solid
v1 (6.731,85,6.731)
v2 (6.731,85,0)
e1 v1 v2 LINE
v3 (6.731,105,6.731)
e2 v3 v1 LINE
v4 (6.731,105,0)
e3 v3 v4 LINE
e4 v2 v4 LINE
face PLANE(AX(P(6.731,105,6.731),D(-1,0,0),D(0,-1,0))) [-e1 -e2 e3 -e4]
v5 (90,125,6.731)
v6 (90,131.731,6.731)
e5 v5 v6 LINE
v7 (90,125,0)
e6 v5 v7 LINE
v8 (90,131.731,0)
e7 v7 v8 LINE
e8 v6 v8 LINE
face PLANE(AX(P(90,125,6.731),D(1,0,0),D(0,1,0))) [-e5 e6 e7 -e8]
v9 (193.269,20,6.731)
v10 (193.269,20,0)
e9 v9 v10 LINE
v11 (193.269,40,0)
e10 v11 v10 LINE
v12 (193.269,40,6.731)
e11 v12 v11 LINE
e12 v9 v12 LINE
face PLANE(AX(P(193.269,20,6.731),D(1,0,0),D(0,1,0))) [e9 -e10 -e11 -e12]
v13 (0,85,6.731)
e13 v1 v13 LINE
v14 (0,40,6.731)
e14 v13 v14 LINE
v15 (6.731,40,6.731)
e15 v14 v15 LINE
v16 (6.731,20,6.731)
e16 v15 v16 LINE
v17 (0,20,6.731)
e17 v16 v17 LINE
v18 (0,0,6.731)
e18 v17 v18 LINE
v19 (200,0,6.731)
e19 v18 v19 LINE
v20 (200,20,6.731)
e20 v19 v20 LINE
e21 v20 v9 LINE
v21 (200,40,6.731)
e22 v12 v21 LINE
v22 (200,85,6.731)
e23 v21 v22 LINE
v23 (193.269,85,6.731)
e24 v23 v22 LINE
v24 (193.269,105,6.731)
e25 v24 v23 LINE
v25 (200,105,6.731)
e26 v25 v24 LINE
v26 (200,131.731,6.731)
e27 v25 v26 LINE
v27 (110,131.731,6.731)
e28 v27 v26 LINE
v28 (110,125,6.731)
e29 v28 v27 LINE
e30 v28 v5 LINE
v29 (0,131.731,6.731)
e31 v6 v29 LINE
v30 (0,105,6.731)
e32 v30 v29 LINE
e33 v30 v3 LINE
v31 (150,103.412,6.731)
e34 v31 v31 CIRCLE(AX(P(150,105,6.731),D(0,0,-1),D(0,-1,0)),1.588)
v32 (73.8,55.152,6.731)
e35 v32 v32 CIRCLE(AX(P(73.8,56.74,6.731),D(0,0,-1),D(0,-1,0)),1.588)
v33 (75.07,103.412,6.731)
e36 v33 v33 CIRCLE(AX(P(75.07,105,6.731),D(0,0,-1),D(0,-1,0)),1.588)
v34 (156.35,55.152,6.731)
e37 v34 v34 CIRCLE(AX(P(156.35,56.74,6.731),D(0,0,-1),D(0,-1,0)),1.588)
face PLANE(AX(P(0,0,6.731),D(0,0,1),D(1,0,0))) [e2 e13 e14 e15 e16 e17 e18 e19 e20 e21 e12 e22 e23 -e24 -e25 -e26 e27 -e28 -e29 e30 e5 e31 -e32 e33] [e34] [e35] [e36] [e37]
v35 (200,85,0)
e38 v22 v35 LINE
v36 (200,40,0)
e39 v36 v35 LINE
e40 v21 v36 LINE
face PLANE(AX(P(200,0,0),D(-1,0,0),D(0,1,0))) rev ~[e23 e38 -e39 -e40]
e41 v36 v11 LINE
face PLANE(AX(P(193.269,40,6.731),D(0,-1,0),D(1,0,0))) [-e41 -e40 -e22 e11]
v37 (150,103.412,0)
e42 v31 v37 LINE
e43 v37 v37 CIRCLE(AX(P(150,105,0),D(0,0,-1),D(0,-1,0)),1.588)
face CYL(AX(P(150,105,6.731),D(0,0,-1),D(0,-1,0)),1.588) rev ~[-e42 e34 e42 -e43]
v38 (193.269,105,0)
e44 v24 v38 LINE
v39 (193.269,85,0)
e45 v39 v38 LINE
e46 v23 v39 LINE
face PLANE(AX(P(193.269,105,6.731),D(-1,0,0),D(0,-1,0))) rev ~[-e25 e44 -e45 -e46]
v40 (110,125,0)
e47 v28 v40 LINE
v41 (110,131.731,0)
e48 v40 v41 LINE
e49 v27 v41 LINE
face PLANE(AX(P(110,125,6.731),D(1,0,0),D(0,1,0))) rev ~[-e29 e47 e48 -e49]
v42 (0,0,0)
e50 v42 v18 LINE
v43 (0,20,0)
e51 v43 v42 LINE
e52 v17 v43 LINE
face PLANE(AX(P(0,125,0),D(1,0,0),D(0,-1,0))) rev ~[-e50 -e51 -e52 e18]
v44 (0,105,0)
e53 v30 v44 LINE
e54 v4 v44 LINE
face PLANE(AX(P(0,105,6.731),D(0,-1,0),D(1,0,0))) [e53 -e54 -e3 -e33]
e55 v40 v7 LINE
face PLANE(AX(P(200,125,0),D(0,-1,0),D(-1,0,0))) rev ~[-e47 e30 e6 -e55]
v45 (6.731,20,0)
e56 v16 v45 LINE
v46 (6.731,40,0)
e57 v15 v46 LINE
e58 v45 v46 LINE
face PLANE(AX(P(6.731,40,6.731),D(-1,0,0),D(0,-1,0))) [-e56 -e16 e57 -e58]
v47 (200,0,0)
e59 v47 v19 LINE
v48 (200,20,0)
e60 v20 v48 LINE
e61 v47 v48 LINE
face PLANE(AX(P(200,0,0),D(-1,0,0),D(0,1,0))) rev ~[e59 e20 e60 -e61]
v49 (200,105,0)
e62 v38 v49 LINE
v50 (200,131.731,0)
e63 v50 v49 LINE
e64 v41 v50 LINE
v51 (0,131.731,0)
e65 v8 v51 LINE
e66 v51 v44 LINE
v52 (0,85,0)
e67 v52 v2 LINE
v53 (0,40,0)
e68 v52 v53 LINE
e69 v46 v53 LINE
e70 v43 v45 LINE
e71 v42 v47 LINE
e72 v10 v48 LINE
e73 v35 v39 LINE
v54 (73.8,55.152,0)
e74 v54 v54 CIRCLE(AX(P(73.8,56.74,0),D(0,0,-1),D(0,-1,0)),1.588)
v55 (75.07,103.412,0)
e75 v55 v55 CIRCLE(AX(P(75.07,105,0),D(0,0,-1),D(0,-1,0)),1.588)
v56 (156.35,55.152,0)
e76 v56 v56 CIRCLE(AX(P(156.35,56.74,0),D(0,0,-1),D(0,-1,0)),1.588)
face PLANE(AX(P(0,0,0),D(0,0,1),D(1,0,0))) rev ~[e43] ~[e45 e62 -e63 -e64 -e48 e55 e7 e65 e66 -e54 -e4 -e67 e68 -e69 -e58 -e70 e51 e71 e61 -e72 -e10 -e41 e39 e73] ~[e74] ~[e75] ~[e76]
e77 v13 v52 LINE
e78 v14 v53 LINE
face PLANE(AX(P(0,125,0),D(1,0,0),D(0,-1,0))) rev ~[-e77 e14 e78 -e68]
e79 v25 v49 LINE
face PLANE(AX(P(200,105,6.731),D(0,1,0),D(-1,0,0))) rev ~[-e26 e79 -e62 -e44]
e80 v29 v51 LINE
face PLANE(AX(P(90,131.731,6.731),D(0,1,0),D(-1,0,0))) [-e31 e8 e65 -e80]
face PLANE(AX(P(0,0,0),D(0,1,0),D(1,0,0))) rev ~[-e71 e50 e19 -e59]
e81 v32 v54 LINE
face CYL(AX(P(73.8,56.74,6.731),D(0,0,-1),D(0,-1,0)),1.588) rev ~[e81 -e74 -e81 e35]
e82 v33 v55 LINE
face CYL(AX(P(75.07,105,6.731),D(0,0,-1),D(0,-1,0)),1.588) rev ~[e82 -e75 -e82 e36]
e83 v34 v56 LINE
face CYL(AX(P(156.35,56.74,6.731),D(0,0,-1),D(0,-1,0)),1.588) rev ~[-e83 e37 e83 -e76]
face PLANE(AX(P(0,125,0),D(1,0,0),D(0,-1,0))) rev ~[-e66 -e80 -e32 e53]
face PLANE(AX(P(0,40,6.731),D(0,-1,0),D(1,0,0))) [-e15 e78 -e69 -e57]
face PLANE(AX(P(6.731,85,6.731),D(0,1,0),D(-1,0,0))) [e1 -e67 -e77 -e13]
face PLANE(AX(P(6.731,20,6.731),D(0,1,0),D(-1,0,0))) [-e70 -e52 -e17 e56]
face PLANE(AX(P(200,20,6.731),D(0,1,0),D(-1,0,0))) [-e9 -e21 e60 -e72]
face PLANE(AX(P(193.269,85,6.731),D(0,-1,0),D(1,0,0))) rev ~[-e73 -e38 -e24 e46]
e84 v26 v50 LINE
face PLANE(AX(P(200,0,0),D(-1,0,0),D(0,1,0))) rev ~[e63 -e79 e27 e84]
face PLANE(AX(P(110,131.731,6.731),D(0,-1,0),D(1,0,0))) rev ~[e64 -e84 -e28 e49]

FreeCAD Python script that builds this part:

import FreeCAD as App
import Part
import Sketcher
Q = App.Units.Quantity

doc = App.newDocument("Part")
body = doc.addObject("PartDesign::Body", "Body")

sketch1 = body.newObject("Sketcher::SketchObject", "Sketch")
sketch1.AttachmentSupport = (doc.getObject("XY_Plane"), [""])
sketch1.MapMode = "FlatFace"
sketch1.addGeometry([
    Part.LineSegment(App.Vector(0, 125, 0), App.Vector(0, 0, 0)),
    Part.LineSegment(App.Vector(0, 0, 0), App.Vector(200, 0, 0)),
    Part.LineSegment(App.Vector(200, 0, 0), App.Vector(200, 125, 0)),
    Part.LineSegment(App.Vector(200, 125, 0), App.Vector(0, 125, 0)),
], False)
sketch1.addConstraint([
    Sketcher.Constraint("Coincident", 0, 2, 1, 1),
    Sketcher.Constraint("Coincident", 1, 2, 2, 1),
    Sketcher.Constraint("Coincident", 2, 2, 3, 1),
    Sketcher.Constraint("Coincident", 3, 2, 0, 1),
    Sketcher.Constraint("Vertical", 0),
    Sketcher.Constraint("Horizontal", 1),
    Sketcher.Constraint("Vertical", 2),
    Sketcher.Constraint("Horizontal", 3),
    Sketcher.Constraint("Coincident", 0, 2, -1, 1),
    Sketcher.Constraint("DistanceX", 1, 1, 1, 2, Q("200 mm")),
    Sketcher.Constraint("DistanceY", 0, 2, 0, 1, Q("125 mm")),
])
pad1 = body.newObject("PartDesign::Pad", "Pad")
pad1.Profile = sketch1
pad1.Length = 6.731

sketch2 = body.newObject("Sketcher::SketchObject", "Sketch001")
sketch2.AttachmentSupport = (doc.getObject("XY_Plane"), [""])
sketch2.MapMode = "FlatFace"
sketch2.AttachmentOffset = App.Placement(App.Vector(0, 0, 6.731), App.Rotation())
sketch2.addGeometry([
    Part.Circle(App.Vector(75.07, 105, 0), App.Vector(0, 0, 1), 1.588),
    Part.Circle(App.Vector(73.8, 56.74, 0), App.Vector(0, 0, 1), 1.588),
    Part.Circle(App.Vector(156.35, 56.74, 0), App.Vector(0, 0, 1), 1.588),
    Part.Circle(App.Vector(150, 105, 0), App.Vector(0, 0, 1), 1.588),
], False)
sketch2.addConstraint([
    Sketcher.Constraint("Equal", 0, 1),
    Sketcher.Constraint("Equal", 1, 2),
    Sketcher.Constraint("Equal", 2, 3),
    Sketcher.Constraint("Horizontal", 1, 3, 2, 3),
    Sketcher.Constraint("Horizontal", 0, 3, 3, 3),
    Sketcher.Constraint("Diameter", 0, Q("3.176 mm")),
    Sketcher.Constraint("DistanceY", -1, 1, 0, 3, Q("105 mm")),
    Sketcher.Constraint("DistanceX", -1, 1, 3, 3, Q("150 mm")),
    Sketcher.Constraint("DistanceX", -1, 1, 1, 3, Q("73.8 mm")),
    Sketcher.Constraint("DistanceX", -1, 1, 0, 3, Q("75.07 mm")),
    Sketcher.Constraint("DistanceY", -1, 1, 1, 3, Q("56.74 mm")),
    Sketcher.Constraint("DistanceX", -1, 1, 2, 3, Q("156.35 mm")),
])
doc.recompute()
hole = body.newObject("PartDesign::Hole", "Hole")
hole.Profile = sketch2
hole.ThreadType = "None"
hole.Diameter = 3.176
hole.DepthType = "ThroughAll"

sketch3 = body.newObject("Sketcher::SketchObject", "Sketch002")
sketch3.AttachmentSupport = (doc.getObject("XY_Plane"), [""])
sketch3.MapMode = "FlatFace"
sketch3.AttachmentOffset = App.Placement(App.Vector(0, 0, 6.731), App.Rotation())
sketch3.addGeometry([
    Part.LineSegment(App.Vector(193.269, 20, 0), App.Vector(200, 20, 0)),
    Part.LineSegment(App.Vector(200, 20, 0), App.Vector(200, 40, 0)),
    Part.LineSegment(App.Vector(200, 40, 0), App.Vector(193.269, 40, 0)),
    Part.LineSegment(App.Vector(193.269, 40, 0), App.Vector(193.269, 20, 0)),
    Part.LineSegment(App.Vector(193.269, 85, 0), App.Vector(200, 85, 0)),
    Part.LineSegment(App.Vector(200, 85, 0), App.Vector(200, 105, 0)),
    Part.LineSegment(App.Vector(200, 105, 0), App.Vector(193.269, 105, 0)),
    Part.LineSegment(App.Vector(193.269, 105, 0), App.Vector(193.269, 85, 0)),
    Part.LineSegment(App.Vector(0, 40, 0), App.Vector(0, 20, 0)),
    Part.LineSegment(App.Vector(0, 20, 0), App.Vector(6.731, 20, 0)),
    Part.LineSegment(App.Vector(6.731, 20, 0), App.Vector(6.731, 40, 0)),
    Part.LineSegment(App.Vector(6.731, 40, 0), App.Vector(0, 40, 0)),
    Part.LineSegment(App.Vector(0, 105, 0), App.Vector(0, 85, 0)),
    Part.LineSegment(App.Vector(0, 85, 0), App.Vector(6.731, 85, 0)),
    Part.LineSegment(App.Vector(6.731, 85, 0), App.Vector(6.731, 105, 0)),
    Part.LineSegment(App.Vector(6.731, 105, 0), App.Vector(0, 105, 0)),
], False)
sketch3.addConstraint([
    Sketcher.Constraint("Coincident", 0, 2, 1, 1),
    Sketcher.Constraint("Coincident", 1, 2, 2, 1),
    Sketcher.Constraint("Coincident", 2, 2, 3, 1),
    Sketcher.Constraint("Coincident", 3, 2, 0, 1),
    Sketcher.Constraint("Coincident", 4, 2, 5, 1),
    Sketcher.Constraint("Coincident", 5, 2, 6, 1),
    Sketcher.Constraint("Coincident", 6, 2, 7, 1),
    Sketcher.Constraint("Coincident", 7, 2, 4, 1),
    Sketcher.Constraint("Coincident", 8, 2, 9, 1),
    Sketcher.Constraint("Coincident", 9, 2, 10, 1),
    Sketcher.Constraint("Coincident", 10, 2, 11, 1),
    Sketcher.Constraint("Coincident", 11, 2, 8, 1),
    Sketcher.Constraint("Coincident", 12, 2, 13, 1),
    Sketcher.Constraint("Coincident", 13, 2, 14, 1),
    Sketcher.Constraint("Coincident", 14, 2, 15, 1),
    Sketcher.Constraint("Coincident", 15, 2, 12, 1),
    Sketcher.Constraint("Horizontal", 0),
    Sketcher.Constraint("Vertical", 1),
    Sketcher.Constraint("Horizontal", 2),
    Sketcher.Constraint("Vertical", 3),
    Sketcher.Constraint("Horizontal", 4),
    Sketcher.Constraint("Vertical", 5),
    Sketcher.Constraint("Horizontal", 6),
    Sketcher.Constraint("Vertical", 7),
    Sketcher.Constraint("Vertical", 8),
    Sketcher.Constraint("Horizontal", 9),
    Sketcher.Constraint("Vertical", 10),
    Sketcher.Constraint("Horizontal", 11),
    Sketcher.Constraint("Vertical", 12),
    Sketcher.Constraint("Horizontal", 13),
    Sketcher.Constraint("Vertical", 14),
    Sketcher.Constraint("Horizontal", 15),
    Sketcher.Constraint("PointOnObject", 8, 2, -2),
    Sketcher.Constraint("PointOnObject", 12, 2, -2),
    Sketcher.Constraint("Horizontal", 3, 2, 8, 2),
    Sketcher.Constraint("Horizontal", 2, 2, 10, 2),
    Sketcher.Constraint("Horizontal", 7, 2, 12, 2),
    Sketcher.Constraint("Horizontal", 6, 2, 14, 2),
    Sketcher.Constraint("Vertical", 1, 2, 4, 2),
    Sketcher.Constraint("Vertical", 3, 2, 6, 2),
    Sketcher.Constraint("Vertical", 10, 2, 13, 2),
    Sketcher.Constraint("Equal", 6, 9),
    Sketcher.Constraint("Equal", 3, 5),
    Sketcher.Constraint("DistanceY", 1, 1, 1, 2, Q("20 mm")),
    Sketcher.Constraint("DistanceY", -1, 1, 0, 2, Q("20 mm")),
    Sketcher.Constraint("DistanceX", 0, 1, 0, 2, Q("6.731 mm")),
    Sketcher.Constraint("DistanceX", -1, 1, 0, 2, Q("200 mm")),
    Sketcher.Constraint("DistanceY", -1, 1, 4, 2, Q("85 mm")),
])
pocket1 = body.newObject("PartDesign::Pocket", "Pocket")
pocket1.Profile = sketch3
pocket1.Type = "UpToFirst"

sketch4 = body.newObject("Sketcher::SketchObject", "Sketch003")
sketch4.AttachmentSupport = (doc.getObject("XY_Plane"), [""])
sketch4.MapMode = "FlatFace"
sketch4.AttachmentOffset = App.Placement(App.Vector(0, 0, 6.731), App.Rotation())
sketch4.addGeometry([
    Part.LineSegment(App.Vector(0, 131.731, 0), App.Vector(0, 125, 0)),
    Part.LineSegment(App.Vector(0, 125, 0), App.Vector(90, 125, 0)),
    Part.LineSegment(App.Vector(90, 125, 0), App.Vector(90, 131.731, 0)),
    Part.LineSegment(App.Vector(90, 131.731, 0), App.Vector(0, 131.731, 0)),
    Part.LineSegment(App.Vector(110, 125, 0), App.Vector(200, 125, 0)),
    Part.LineSegment(App.Vector(200, 125, 0), App.Vector(200, 131.731, 0)),
    Part.LineSegment(App.Vector(200, 131.731, 0), App.Vector(110, 131.731, 0)),
    Part.LineSegment(App.Vector(110, 131.731, 0), App.Vector(110, 125, 0)),
], False)
sketch4.addConstraint([
    Sketcher.Constraint("Coincident", 0, 2, 1, 1),
    Sketcher.Constraint("Coincident", 1, 2, 2, 1),
    Sketcher.Constraint("Coincident", 2, 2, 3, 1),
    Sketcher.Constraint("Coincident", 3, 2, 0, 1),
    Sketcher.Constraint("Coincident", 4, 2, 5, 1),
    Sketcher.Constraint("Coincident", 5, 2, 6, 1),
    Sketcher.Constraint("Coincident", 6, 2, 7, 1),
    Sketcher.Constraint("Coincident", 7, 2, 4, 1),
    Sketcher.Constraint("Vertical", 0),
    Sketcher.Constraint("Horizontal", 1),
    Sketcher.Constraint("Vertical", 2),
    Sketcher.Constraint("Horizontal", 3),
    Sketcher.Constraint("Horizontal", 4),
    Sketcher.Constraint("Vertical", 5),
    Sketcher.Constraint("Horizontal", 6),
    Sketcher.Constraint("Vertical", 7),
    Sketcher.Constraint("PointOnObject", 0, 2, -2),
    Sketcher.Constraint("Horizontal", 1, 2, 4, 2),
    Sketcher.Constraint("Horizontal", 3, 2, 5, 2),
    Sketcher.Constraint("Equal", 3, 4),
    Sketcher.Constraint("DistanceX", 2, 2, 6, 2, Q("20 mm")),
    Sketcher.Constraint("DistanceX", 1, 1, 1, 2, Q("90 mm")),
    Sketcher.Constraint("DistanceY", -1, 1, 0, 2, Q("125 mm")),
    Sketcher.Constraint("DistanceY", 0, 2, 0, 1, Q("6.731 mm")),
])
pad2 = body.newObject("PartDesign::Pad", "Pad001")
pad2.Profile = sketch4
pad2.Length = 6.731
pad2.Reversed = True

doc.recompute()
